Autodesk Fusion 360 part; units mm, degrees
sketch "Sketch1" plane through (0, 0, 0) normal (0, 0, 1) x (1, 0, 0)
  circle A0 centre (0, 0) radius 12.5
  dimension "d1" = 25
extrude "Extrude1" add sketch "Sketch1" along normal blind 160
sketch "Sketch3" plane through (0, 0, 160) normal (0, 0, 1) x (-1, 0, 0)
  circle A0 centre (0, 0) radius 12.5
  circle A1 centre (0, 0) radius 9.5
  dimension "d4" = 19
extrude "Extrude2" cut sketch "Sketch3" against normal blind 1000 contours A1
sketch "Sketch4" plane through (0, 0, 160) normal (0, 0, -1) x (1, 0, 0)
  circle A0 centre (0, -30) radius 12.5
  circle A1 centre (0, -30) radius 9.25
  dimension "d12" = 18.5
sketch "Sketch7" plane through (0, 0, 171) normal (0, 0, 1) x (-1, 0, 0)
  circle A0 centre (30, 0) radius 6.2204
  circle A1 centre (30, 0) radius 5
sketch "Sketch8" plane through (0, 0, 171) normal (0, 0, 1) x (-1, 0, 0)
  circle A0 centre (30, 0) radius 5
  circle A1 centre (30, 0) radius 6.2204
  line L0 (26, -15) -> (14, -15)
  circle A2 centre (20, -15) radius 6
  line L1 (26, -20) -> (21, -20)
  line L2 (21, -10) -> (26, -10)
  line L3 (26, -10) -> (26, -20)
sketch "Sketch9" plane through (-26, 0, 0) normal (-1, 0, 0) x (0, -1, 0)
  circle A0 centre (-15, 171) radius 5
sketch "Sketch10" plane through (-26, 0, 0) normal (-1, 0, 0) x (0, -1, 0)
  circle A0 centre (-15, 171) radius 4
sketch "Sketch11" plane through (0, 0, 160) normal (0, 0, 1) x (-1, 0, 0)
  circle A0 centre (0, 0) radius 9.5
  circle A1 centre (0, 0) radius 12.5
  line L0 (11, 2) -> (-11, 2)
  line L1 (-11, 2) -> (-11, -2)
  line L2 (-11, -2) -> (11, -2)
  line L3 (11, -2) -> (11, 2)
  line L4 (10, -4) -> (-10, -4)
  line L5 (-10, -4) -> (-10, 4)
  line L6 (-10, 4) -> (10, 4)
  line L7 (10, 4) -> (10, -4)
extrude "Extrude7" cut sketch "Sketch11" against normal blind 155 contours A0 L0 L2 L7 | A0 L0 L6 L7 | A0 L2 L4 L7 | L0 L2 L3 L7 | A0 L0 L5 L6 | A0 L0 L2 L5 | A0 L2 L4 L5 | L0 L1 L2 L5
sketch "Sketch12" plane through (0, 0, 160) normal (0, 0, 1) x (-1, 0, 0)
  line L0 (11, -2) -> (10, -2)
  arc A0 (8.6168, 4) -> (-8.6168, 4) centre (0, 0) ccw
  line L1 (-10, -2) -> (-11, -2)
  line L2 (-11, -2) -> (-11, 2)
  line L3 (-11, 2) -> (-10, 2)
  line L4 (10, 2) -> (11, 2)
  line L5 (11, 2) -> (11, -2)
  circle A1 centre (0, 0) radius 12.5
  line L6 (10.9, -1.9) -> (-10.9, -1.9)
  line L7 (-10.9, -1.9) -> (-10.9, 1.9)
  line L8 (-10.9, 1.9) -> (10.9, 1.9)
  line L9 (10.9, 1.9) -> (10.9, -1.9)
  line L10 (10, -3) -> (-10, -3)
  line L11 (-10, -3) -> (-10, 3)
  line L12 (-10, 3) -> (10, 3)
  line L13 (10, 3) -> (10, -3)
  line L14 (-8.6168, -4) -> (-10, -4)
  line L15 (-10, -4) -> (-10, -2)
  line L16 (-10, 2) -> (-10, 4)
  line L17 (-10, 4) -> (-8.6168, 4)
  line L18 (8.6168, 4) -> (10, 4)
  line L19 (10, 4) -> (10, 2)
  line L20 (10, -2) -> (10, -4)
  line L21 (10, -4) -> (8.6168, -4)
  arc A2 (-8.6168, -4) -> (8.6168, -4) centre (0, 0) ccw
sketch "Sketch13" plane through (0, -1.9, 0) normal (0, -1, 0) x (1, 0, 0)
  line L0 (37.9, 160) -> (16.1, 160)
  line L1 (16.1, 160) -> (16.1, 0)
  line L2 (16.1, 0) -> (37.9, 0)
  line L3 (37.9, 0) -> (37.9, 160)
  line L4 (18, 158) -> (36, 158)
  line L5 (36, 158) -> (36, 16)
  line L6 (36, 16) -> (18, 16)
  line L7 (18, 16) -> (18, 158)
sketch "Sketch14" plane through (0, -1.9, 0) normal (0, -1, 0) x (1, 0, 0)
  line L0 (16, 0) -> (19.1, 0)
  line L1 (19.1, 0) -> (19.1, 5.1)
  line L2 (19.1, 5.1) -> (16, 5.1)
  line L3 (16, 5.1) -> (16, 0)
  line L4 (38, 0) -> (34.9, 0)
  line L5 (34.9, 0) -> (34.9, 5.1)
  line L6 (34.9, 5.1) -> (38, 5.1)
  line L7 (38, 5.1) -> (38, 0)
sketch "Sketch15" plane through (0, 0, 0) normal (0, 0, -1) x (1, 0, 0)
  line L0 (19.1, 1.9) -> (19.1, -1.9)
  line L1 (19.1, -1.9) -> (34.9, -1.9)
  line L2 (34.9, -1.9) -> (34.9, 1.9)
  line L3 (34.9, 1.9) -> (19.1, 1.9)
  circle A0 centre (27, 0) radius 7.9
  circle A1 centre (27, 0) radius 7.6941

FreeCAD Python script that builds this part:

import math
import FreeCAD as App
import Part
import Sketcher

V = App.Vector

doc = App.newDocument("Part")
params = doc.addObject("Spreadsheet::Sheet", "Params")
for row, (alias, value) in enumerate([
    ("sketch1_diameter", "25 mm"),
    ("pad1_length", "160 mm"),
    ("sketch2_diameter", "19 mm"),
    ("pocket1_length", "1000 mm"),
    ("sketch3_radius", "9.5 mm"),
    ("sketch3_width", "1 mm"),
    ("sketch3_height", "2 mm"),
    ("sketch3_height2", "4 mm"),
    ("pocket2_length", "155 mm"),
], start=1):
    params.set(f"A{row}", alias)
    params.set(f"B{row}", "=" + value)
    params.setAlias(f"B{row}", alias)

body = doc.addObject("PartDesign::Body", "Body")

# Sketch on XY plane
sketch1 = doc.addObject("Sketcher::SketchObject", "Sketch")
body.addObject(sketch1)
sketch1.AttachmentSupport = (doc.XY_Plane, [""])
sketch1.MapMode = "FlatFace"
sketch1.addGeometry(Part.Circle(V(0, 0, 0), V(0, 0, 1), 12), False)
sketch1.addConstraint([
    Sketcher.Constraint("Coincident", 0, 3, -1, 1),
    Sketcher.Constraint("Diameter", 0, 25.0),
])
sketch1.setExpression("Constraints[1]", "Params.sketch1_diameter")
pad1 = doc.addObject("PartDesign::Pad", "Pad")
body.addObject(pad1)
pad1.Profile = sketch1
pad1.setExpression("Length", "Params.pad1_length")

# Sketch on XY plane
sketch2 = doc.addObject("Sketcher::SketchObject", "Sketch001")
body.addObject(sketch2)
sketch2.AttachmentSupport = (doc.XY_Plane, [""])
sketch2.MapMode = "FlatFace"
sketch2.AttachmentOffset = App.Placement(V(0, 0, 160), App.Rotation())
sketch2.addGeometry(Part.Circle(V(0, 0, 0), V(0, 0, 1), 10), False)
sketch2.addConstraint([
    Sketcher.Constraint("Coincident", 0, 3, -1, 1),
    Sketcher.Constraint("Diameter", 0, 19.0),
])
sketch2.setExpression("Constraints[1]", "Params.sketch2_diameter")
pocket1 = doc.addObject("PartDesign::Pocket", "Pocket")
body.addObject(pocket1)
pocket1.Profile = sketch2
pocket1.setExpression("Length", "Params.pocket1_length")

# Sketch on XY plane
sketch3 = doc.addObject("Sketcher::SketchObject", "Sketch002")
body.addObject(sketch3)
sketch3.AttachmentSupport = (doc.XY_Plane, [""])
sketch3.MapMode = "FlatFace"
sketch3.AttachmentOffset = App.Placement(V(0, 0, 160), App.Rotation())
sketch3.addGeometry([
    Part.LineSegment(V(-8.6, 4, 0), V(-10, 4, 0)),  # 0
    Part.LineSegment(V(-10, 4, 0), V(-10, 2, 0)),  # 1
    Part.LineSegment(V(-10, 2, 0), V(-11, 2, 0)),  # 2
    Part.LineSegment(V(-11, 2, 0), V(-11, -2, 0)),  # 3
    Part.LineSegment(V(-11, -2, 0), V(-10, -2, 0)),  # 4
    Part.LineSegment(V(-10, -2, 0), V(-10, -4, 0)),  # 5
    Part.LineSegment(V(-10, -4, 0), V(-8.6, -4, 0)),  # 6
    Part.ArcOfCircle(Part.Circle(V(0, 0, 0), V(0, 0, 1), 9.5), math.radians(155), math.radians(205)),  # 7
    Part.LineSegment(V(10, -4, 0), V(10, -2, 0)),  # 8
    Part.LineSegment(V(10, -2, 0), V(11, -2, 0)),  # 9
    Part.LineSegment(V(11, -2, 0), V(11, 2, 0)),  # 10
    Part.LineSegment(V(11, 2, 0), V(10, 2, 0)),  # 11
    Part.LineSegment(V(10, 2, 0), V(10, 4, 0)),  # 12
    Part.LineSegment(V(10, 4, 0), V(8.6, 4, 0)),  # 13
    Part.ArcOfCircle(Part.Circle(V(0, 0, 0), V(0, 0, 1), 9.5), math.radians(-25), math.radians(25)),  # 14
    Part.LineSegment(V(8.6, -4, 0), V(10, -4, 0)),  # 15
], False)
sketch3.addConstraint([
    Sketcher.Constraint("Coincident", 0, 2, 1, 1),
    Sketcher.Constraint("Coincident", 1, 2, 2, 1),
    Sketcher.Constraint("Coincident", 2, 2, 3, 1),
    Sketcher.Constraint("Coincident", 3, 2, 4, 1),
    Sketcher.Constraint("Coincident", 4, 2, 5, 1),
    Sketcher.Constraint("Coincident", 5, 2, 6, 1),
    Sketcher.Constraint("Coincident", 6, 2, 7, 2),
    Sketcher.Constraint("Coincident", 7, 1, 0, 1),
    Sketcher.Constraint("Coincident", 8, 2, 9, 1),
    Sketcher.Constraint("Coincident", 9, 2, 10, 1),
    Sketcher.Constraint("Coincident", 10, 2, 11, 1),
    Sketcher.Constraint("Coincident", 11, 2, 12, 1),
    Sketcher.Constraint("Coincident", 12, 2, 13, 1),
    Sketcher.Constraint("Coincident", 13, 2, 14, 2),
    Sketcher.Constraint("Coincident", 14, 1, 15, 1),
    Sketcher.Constraint("Coincident", 15, 2, 8, 1),
    Sketcher.Constraint("Horizontal", 0),
    Sketcher.Constraint("Vertical", 1),
    Sketcher.Constraint("Horizontal", 2),
    Sketcher.Constraint("Vertical", 3),
    Sketcher.Constraint("Horizontal", 4),
    Sketcher.Constraint("Vertical", 5),
    Sketcher.Constraint("Horizontal", 6),
    Sketcher.Constraint("Vertical", 8),
    Sketcher.Constraint("Horizontal", 9),
    Sketcher.Constraint("Vertical", 10),
    Sketcher.Constraint("Horizontal", 11),
    Sketcher.Constraint("Vertical", 12),
    Sketcher.Constraint("Horizontal", 13),
    Sketcher.Constraint("Horizontal", 15),
    Sketcher.Constraint("Coincident", 7, 3, -1, 1),
    Sketcher.Constraint("Coincident", 14, 3, -1, 1),
    Sketcher.Constraint("Equal", 7, 14),
    Sketcher.Constraint("Symmetric", 1, 2, 8, 2, -1, 1),
    Sketcher.Constraint("Symmetric", 3, 2, 10, 2, -1, 1),
    Sketcher.Constraint("Symmetric", 5, 2, 12, 2, -1, 1),
    Sketcher.Constraint("Symmetric", 4, 2, 8, 2, -2),
    Sketcher.Constraint("Horizontal", 7, 1, 12, 2),
    Sketcher.Constraint("Horizontal", 6, 2, 14, 1),
    Sketcher.Constraint("Radius", 7, 9.5),
    Sketcher.Constraint("DistanceX", 2, 2, 2, 1, 1.0),
    Sketcher.Constraint("DistanceY", 1, 2, 1, 1, 2.0),
    Sketcher.Constraint("DistanceY", 3, 2, 3, 1, 4.0),
    Sketcher.Constraint("DistanceX", 0, 2, -1, 1, 10.0),
])
sketch3.setExpression("Constraints[39]", "Params.sketch3_radius")
sketch3.setExpression("Constraints[40]", "Params.sketch3_width")
sketch3.setExpression("Constraints[41]", "Params.sketch3_height")
sketch3.setExpression("Constraints[42]", "Params.sketch3_height2")
pocket2 = doc.addObject("PartDesign::Pocket", "Pocket001")
body.addObject(pocket2)
pocket2.Profile = sketch3
pocket2.setExpression("Length", "Params.pocket2_length")

doc.recompute()
